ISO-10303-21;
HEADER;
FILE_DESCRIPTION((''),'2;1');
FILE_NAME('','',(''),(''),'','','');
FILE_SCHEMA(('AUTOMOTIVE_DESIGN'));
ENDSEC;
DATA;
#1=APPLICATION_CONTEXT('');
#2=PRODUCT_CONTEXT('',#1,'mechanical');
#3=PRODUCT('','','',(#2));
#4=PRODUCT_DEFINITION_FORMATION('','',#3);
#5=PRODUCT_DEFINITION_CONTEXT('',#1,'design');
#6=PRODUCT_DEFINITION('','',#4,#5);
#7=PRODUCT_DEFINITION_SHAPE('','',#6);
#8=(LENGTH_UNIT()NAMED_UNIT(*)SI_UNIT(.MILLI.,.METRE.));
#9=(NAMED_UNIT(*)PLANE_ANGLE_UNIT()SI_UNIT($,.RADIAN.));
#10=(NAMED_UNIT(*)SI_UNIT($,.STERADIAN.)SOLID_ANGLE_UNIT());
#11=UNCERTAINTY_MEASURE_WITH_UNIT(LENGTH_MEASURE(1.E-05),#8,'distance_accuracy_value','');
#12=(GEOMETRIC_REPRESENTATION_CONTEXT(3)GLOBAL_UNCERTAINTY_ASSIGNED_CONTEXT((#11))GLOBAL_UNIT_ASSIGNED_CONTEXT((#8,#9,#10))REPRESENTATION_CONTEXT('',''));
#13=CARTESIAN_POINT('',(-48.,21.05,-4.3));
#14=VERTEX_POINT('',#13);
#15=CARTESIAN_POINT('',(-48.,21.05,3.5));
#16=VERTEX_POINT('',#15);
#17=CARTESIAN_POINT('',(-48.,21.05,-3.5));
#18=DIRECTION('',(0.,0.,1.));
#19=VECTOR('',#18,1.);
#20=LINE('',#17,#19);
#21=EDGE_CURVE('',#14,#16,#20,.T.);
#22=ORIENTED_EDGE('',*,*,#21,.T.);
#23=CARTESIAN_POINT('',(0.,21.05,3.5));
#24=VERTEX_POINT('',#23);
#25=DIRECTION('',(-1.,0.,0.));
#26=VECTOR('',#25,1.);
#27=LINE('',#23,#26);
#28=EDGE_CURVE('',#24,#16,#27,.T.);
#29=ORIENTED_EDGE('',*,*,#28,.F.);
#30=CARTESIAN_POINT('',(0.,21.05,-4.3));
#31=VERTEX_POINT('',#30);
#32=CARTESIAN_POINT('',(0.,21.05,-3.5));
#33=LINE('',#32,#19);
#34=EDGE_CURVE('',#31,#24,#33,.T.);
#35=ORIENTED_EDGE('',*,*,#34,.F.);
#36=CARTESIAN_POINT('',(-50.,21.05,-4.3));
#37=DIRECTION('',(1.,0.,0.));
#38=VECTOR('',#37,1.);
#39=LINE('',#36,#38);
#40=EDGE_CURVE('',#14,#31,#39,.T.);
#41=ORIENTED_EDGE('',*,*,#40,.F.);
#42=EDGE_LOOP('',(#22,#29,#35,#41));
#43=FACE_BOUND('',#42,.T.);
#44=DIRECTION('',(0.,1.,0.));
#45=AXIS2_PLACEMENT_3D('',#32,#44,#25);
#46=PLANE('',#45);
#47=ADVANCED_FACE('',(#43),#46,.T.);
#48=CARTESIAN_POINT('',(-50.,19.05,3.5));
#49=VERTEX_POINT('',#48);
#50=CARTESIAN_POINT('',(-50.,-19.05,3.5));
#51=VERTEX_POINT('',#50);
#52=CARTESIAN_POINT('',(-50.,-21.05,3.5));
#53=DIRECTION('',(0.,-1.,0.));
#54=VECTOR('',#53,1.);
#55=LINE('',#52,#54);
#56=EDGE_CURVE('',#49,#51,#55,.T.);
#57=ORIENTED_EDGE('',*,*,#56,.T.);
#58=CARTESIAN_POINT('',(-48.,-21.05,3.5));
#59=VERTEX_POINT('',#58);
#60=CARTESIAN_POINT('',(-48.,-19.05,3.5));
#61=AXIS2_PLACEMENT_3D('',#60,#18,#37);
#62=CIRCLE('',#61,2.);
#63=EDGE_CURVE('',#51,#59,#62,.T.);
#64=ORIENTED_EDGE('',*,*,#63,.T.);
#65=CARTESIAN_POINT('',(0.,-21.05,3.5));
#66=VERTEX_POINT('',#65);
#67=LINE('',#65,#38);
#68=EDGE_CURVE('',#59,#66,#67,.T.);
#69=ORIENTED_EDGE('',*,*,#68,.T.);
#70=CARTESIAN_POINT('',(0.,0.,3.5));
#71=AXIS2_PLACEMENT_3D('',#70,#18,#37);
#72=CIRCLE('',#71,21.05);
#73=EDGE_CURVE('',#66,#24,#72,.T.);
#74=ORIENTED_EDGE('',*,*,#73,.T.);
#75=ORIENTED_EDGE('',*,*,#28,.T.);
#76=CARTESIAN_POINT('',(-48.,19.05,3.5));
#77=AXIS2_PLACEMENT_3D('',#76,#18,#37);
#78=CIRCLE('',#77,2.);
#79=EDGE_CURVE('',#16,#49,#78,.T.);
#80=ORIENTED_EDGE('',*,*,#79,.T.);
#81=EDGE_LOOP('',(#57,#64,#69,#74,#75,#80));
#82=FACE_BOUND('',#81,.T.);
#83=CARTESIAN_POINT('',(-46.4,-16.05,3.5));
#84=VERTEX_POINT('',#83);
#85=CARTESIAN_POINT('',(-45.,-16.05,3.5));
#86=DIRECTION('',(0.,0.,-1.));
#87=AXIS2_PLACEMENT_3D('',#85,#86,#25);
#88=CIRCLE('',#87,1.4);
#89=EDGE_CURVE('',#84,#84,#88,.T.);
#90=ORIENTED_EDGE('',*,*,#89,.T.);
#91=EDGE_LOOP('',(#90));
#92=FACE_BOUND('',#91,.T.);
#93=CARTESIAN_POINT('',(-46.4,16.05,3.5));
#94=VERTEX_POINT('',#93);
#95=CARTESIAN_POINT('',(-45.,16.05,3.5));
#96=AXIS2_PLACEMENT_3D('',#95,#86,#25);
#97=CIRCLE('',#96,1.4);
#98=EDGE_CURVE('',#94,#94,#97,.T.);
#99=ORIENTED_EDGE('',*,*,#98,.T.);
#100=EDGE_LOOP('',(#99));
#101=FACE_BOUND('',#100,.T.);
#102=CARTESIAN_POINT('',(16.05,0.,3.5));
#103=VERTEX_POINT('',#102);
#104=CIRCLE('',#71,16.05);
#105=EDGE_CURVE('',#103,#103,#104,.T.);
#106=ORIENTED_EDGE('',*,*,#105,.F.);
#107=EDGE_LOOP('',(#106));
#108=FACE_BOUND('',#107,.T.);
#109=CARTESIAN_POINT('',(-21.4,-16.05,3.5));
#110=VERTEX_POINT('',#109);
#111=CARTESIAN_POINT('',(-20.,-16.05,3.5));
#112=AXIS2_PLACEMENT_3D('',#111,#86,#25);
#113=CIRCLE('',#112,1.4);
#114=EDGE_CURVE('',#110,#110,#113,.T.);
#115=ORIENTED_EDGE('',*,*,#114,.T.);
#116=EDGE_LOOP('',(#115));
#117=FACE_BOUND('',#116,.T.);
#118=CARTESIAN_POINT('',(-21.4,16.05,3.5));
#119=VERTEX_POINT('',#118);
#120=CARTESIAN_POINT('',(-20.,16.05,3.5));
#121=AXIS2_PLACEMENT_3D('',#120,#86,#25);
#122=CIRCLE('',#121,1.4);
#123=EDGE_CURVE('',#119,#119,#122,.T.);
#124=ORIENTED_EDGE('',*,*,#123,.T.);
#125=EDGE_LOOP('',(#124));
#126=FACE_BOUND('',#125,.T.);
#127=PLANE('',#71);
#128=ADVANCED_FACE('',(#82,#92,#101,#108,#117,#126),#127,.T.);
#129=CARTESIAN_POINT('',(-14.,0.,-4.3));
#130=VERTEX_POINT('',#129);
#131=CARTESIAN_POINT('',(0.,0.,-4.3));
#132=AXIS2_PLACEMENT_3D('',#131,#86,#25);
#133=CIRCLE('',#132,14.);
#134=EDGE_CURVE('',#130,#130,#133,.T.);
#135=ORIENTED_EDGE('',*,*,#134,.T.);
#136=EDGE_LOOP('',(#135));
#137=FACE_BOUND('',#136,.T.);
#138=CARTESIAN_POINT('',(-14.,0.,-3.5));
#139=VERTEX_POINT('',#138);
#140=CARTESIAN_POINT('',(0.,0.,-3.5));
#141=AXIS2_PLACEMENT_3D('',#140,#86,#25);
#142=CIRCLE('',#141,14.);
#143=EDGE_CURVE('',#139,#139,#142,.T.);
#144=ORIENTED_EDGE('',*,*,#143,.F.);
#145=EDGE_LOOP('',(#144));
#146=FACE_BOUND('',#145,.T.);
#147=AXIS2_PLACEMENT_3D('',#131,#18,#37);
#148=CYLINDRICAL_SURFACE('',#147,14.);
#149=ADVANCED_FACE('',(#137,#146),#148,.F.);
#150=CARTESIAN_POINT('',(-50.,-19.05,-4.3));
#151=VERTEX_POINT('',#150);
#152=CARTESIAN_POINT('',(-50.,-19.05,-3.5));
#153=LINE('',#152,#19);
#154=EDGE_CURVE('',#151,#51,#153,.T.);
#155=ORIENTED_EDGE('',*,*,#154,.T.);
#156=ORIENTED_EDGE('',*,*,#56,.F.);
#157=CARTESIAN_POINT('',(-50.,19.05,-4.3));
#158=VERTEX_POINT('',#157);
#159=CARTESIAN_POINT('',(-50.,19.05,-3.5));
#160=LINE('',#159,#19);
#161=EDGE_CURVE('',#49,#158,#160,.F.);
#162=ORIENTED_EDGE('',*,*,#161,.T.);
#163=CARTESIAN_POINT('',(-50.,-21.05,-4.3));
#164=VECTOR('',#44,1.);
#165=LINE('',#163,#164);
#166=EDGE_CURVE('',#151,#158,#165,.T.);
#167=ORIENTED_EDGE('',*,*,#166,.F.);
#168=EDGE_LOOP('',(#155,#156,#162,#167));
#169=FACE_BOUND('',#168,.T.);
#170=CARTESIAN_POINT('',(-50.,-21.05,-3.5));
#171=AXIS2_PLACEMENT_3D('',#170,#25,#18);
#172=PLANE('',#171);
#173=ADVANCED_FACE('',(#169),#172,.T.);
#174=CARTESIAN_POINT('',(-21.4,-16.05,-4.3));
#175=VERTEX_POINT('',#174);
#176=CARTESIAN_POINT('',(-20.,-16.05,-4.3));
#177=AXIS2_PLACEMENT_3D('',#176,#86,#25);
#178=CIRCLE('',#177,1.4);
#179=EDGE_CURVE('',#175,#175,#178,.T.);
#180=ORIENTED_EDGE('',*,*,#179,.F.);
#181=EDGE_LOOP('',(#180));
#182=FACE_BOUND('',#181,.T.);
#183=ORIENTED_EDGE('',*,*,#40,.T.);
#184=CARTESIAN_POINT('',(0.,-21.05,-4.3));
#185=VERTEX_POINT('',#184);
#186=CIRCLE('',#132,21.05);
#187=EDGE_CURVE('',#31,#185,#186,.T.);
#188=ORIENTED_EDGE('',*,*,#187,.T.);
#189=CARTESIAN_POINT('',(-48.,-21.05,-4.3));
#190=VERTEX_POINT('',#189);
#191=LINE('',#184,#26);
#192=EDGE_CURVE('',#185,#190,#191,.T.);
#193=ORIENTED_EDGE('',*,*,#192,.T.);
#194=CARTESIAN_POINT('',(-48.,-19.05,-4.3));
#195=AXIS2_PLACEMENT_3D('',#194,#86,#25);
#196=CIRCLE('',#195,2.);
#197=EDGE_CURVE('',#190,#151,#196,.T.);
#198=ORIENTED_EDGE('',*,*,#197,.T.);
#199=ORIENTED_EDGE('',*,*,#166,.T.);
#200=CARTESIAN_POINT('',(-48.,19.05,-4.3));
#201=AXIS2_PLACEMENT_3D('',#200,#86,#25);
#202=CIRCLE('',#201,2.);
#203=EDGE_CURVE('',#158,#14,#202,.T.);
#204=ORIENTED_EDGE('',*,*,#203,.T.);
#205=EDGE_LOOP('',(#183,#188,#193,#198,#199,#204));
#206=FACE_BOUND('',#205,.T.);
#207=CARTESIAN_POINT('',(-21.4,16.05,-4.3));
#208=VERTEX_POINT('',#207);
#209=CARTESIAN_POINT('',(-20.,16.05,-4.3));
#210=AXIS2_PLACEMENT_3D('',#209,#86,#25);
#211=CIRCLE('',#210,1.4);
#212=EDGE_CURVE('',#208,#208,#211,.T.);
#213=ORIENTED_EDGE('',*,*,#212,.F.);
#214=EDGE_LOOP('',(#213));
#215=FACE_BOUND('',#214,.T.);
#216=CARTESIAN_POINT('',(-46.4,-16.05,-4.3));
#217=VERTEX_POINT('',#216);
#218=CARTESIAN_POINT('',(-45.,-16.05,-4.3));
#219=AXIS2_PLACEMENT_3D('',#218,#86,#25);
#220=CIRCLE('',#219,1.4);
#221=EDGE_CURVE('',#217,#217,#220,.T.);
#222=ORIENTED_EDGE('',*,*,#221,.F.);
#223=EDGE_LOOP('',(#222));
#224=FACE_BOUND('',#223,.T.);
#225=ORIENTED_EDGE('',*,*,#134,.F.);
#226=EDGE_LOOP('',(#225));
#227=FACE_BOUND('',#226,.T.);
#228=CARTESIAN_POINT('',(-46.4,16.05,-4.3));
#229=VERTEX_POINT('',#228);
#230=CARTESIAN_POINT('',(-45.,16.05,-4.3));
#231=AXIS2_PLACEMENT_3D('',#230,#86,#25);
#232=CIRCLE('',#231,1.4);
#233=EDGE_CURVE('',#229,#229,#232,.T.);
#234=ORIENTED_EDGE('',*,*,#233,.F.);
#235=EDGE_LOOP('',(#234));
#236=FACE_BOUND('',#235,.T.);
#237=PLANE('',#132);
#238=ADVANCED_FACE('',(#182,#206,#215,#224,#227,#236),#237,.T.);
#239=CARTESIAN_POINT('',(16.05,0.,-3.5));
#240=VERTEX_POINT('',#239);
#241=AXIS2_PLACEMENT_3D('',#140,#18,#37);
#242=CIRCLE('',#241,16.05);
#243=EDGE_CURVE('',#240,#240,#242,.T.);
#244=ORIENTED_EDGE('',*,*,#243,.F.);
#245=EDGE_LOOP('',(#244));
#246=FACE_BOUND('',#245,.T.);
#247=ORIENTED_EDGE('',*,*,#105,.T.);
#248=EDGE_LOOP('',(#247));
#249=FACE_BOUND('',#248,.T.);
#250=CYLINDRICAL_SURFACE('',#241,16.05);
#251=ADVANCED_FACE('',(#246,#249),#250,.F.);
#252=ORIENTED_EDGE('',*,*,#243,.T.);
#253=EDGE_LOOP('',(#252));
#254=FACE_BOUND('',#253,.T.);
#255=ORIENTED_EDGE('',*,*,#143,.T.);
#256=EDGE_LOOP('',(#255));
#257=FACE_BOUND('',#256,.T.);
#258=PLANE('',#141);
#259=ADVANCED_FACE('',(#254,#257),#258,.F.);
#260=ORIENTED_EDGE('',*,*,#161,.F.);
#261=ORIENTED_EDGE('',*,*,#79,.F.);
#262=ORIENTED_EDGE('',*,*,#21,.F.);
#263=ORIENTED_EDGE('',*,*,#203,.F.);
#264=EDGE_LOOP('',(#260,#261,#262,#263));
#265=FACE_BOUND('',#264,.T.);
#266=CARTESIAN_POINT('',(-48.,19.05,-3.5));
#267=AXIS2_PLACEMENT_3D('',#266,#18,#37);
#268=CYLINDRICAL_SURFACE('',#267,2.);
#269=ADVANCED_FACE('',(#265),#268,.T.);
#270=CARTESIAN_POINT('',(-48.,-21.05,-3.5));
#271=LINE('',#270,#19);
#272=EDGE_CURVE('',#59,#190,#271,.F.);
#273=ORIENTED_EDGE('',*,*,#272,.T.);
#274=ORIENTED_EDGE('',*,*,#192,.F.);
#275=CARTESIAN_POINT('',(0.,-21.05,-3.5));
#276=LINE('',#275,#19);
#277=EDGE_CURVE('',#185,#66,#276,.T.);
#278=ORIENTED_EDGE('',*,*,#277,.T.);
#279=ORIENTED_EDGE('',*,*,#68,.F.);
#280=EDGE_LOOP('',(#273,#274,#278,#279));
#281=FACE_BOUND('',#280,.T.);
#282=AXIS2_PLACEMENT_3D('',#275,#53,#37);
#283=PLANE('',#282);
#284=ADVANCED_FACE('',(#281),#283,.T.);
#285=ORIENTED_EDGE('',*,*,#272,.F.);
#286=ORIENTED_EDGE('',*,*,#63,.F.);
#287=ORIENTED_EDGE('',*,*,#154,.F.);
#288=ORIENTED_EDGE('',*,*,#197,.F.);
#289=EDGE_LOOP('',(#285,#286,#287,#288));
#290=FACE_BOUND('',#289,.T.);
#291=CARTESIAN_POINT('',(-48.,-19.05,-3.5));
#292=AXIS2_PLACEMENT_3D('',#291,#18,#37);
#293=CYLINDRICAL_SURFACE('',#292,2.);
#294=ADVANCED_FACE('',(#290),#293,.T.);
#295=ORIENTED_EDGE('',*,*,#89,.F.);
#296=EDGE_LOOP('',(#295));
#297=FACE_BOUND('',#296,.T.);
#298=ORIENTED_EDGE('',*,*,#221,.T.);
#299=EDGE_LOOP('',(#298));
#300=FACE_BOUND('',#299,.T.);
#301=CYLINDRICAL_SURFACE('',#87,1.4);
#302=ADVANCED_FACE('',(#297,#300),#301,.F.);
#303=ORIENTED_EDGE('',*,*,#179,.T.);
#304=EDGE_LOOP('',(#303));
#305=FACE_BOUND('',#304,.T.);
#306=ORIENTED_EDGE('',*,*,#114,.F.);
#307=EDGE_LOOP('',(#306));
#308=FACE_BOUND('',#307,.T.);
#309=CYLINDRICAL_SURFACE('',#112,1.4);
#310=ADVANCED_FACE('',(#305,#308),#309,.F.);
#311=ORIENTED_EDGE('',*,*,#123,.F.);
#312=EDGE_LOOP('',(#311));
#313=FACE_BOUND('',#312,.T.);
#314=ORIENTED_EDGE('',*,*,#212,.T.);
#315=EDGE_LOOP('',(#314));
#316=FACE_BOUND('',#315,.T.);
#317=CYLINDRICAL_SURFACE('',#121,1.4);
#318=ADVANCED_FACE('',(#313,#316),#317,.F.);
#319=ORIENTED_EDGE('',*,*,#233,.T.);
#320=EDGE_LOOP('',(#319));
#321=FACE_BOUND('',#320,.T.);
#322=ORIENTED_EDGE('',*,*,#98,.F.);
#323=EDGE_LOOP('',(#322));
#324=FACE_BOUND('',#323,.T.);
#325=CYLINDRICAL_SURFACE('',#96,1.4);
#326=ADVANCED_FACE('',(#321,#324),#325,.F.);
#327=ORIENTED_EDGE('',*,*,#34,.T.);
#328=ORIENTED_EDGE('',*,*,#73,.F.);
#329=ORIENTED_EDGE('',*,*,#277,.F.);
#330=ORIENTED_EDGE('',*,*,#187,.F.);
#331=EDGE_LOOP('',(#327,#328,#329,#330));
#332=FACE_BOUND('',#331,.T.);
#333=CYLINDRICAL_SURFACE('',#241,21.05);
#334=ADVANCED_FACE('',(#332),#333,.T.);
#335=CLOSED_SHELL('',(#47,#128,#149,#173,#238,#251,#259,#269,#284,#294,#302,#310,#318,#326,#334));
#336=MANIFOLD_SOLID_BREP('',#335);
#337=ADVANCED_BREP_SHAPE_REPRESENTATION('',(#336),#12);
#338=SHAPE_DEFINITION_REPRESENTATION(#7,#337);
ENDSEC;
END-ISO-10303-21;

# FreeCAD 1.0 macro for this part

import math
import FreeCAD as App
import Part
import Sketcher
from FreeCAD import Vector
Q = App.Units.Quantity


def edges_at(feature, points):
    """Names of the edges that pass closest to the given points."""
    edges = feature.Shape.Edges
    near = lambda p: min(range(len(edges)), key=lambda i: edges[i].distToShape(Part.Vertex(*p))[0])
    return sorted({f"Edge{near(p) + 1}" for p in points})

doc = App.newDocument("Part")
body = doc.addObject("PartDesign::Body", "Body")

sketch1 = body.newObject("Sketcher::SketchObject", "Sketch")
sketch1.AttachmentSupport = (doc.getObject("XY_Plane"), [""])
sketch1.MapMode = "FlatFace"
sketch1.addGeometry([
    Part.LineSegment(Vector(0, 21.05, 0), Vector(-50, 21.05, 0)),
    Part.LineSegment(Vector(-50, 21.05, 0), Vector(-50, -21.05, 0)),
    Part.LineSegment(Vector(-50, -21.05, 0), Vector(0, -21.05, 0)),
    Part.ArcOfCircle(Part.Circle(Vector(0, 0, 0), Vector(0, 0, 1), 21.05), math.radians(-90), math.radians(90)),
    Part.Circle(Vector(0, 0, 0), Vector(0, 0, 1), 16.05),
], False)
sketch1.addConstraint([
    Sketcher.Constraint("Coincident", 0, 2, 1, 1),
    Sketcher.Constraint("Coincident", 1, 2, 2, 1),
    Sketcher.Constraint("Tangent", 2, 2, 3, 1),
    Sketcher.Constraint("Tangent", 3, 2, 0, 1),
    Sketcher.Constraint("Horizontal", 0),
    Sketcher.Constraint("Vertical", 1),
    Sketcher.Constraint("Horizontal", 2),
    Sketcher.Constraint("Coincident", 3, 3, -1, 1),
    Sketcher.Constraint("Coincident", 4, 3, -1, 1),
    Sketcher.Constraint("Diameter", 4, Q("32.1 mm")),
    Sketcher.Constraint("DistanceX", 0, 2, 0, 1, Q("50 mm")),
    Sketcher.Constraint("Radius", 3, Q("21.05 mm")),
])
pad1 = body.newObject("PartDesign::Pad", "Pad")
pad1.Profile = sketch1
pad1.Type = "TwoLengths"
pad1.Length = 3.5
pad1.Length2 = 3.5

sketch2 = body.newObject("Sketcher::SketchObject", "Sketch001")
sketch2.AttachmentSupport = (doc.getObject("XY_Plane"), [""])
sketch2.MapMode = "FlatFace"
sketch2.AttachmentOffset = App.Placement(Vector(0, 0, -4.3), App.Rotation())
sketch2.addGeometry([
    Part.LineSegment(Vector(0, -21.05, 0), Vector(-50, -21.05, 0)),
    Part.LineSegment(Vector(-50, -21.05, 0), Vector(-50, 21.05, 0)),
    Part.LineSegment(Vector(-50, 21.05, 0), Vector(0, 21.05, 0)),
    Part.ArcOfCircle(Part.Circle(Vector(0, 0, 0), Vector(0, 0, 1), 21.05), math.radians(-90), math.radians(90)),
    Part.Circle(Vector(0, 0, 0), Vector(0, 0, 1), 14),
], False)
sketch2.addConstraint([
    Sketcher.Constraint("Coincident", 0, 2, 1, 1),
    Sketcher.Constraint("Coincident", 1, 2, 2, 1),
    Sketcher.Constraint("Tangent", 2, 2, 3, 2),
    Sketcher.Constraint("Tangent", 3, 1, 0, 1),
    Sketcher.Constraint("Horizontal", 0),
    Sketcher.Constraint("Vertical", 1),
    Sketcher.Constraint("Horizontal", 2),
    Sketcher.Constraint("Coincident", 3, 3, -1, 1),
    Sketcher.Constraint("Coincident", 4, 3, -1, 1),
    Sketcher.Constraint("Diameter", 4, Q("28 mm")),
    Sketcher.Constraint("DistanceX", 0, 2, 0, 1, Q("50 mm")),
    Sketcher.Constraint("Radius", 3, Q("21.05 mm")),
])
pad2 = body.newObject("PartDesign::Pad", "Pad001")
pad2.Profile = sketch2
pad2.Length = 0.8

sketch3 = body.newObject("Sketcher::SketchObject", "Sketch002")
sketch3.AttachmentSupport = (doc.getObject("XY_Plane"), [""])
sketch3.MapMode = "FlatFace"
sketch3.AttachmentOffset = App.Placement(Vector(0, 0, -4.3), App.Rotation())
sketch3.addGeometry([
    Part.Circle(Vector(-20, 16.05, 0), Vector(0, 0, 1), 1.4),
    Part.Circle(Vector(-45, 16.05, 0), Vector(0, 0, 1), 1.4),
    Part.Circle(Vector(-45, -16.05, 0), Vector(0, 0, 1), 1.4),
    Part.Circle(Vector(-20, -16.05, 0), Vector(0, 0, 1), 1.4),
], False)
sketch3.addConstraint([
    Sketcher.Constraint("Equal", 0, 1),
    Sketcher.Constraint("Equal", 1, 2),
    Sketcher.Constraint("Equal", 2, 3),
    Sketcher.Constraint("Symmetric", 1, 3, 2, 3, -1),
    Sketcher.Constraint("Symmetric", 0, 3, 3, 3, -1),
    Sketcher.Constraint("Horizontal", 0, 3, 1, 3),
    Sketcher.Constraint("Diameter", 0, Q("2.8 mm")),
    Sketcher.Constraint("DistanceX", 0, 3, -1, 1, Q("20 mm")),
    Sketcher.Constraint("DistanceX", 1, 3, -1, 1, Q("45 mm")),
    Sketcher.Constraint("DistanceY", 2, 3, 1, 3, Q("32.1 mm")),
])
pocket1 = body.newObject("PartDesign::Pocket", "Pocket")
pocket1.Profile = sketch3
pocket1.Type = "ThroughAll"
pocket1.Reversed = True
doc.recompute()

fillet = body.newObject("PartDesign::Fillet", "Fillet")
fillet.Base = (pocket1, edges_at(pocket1, [(-50, -21.05, -0.4), (-50, 21.05, -0.4)]))
fillet.Radius = 2

doc.recompute()
